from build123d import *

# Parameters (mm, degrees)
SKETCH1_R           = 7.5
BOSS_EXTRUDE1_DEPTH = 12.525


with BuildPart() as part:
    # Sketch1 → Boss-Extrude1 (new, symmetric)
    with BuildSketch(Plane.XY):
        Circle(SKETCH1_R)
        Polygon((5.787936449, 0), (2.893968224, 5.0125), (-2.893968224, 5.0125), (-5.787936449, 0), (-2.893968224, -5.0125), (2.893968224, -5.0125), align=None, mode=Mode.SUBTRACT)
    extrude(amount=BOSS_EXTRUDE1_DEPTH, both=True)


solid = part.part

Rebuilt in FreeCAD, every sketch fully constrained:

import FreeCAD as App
import Part
import Sketcher
Q = App.Units.Quantity

doc = App.newDocument("Part")
body = doc.addObject("PartDesign::Body", "Body")

sketch1 = doc.addObject("Sketcher::SketchObject", "Sketch")
body.addObject(sketch1)
sketch1.AttachmentSupport = (doc.XY_Plane, [""])
sketch1.MapMode = "FlatFace"
sketch1.addGeometry(Part.Circle(App.Vector(0, 0, 0), App.Vector(0, 0, 1), 8), False)
sketch1.addGeometry(Part.LineSegment(App.Vector(3, 5, 0), App.Vector(6, 0, 0)), False)
sketch1.addGeometry(Part.LineSegment(App.Vector(6, 0, 0), App.Vector(3, -5, 0)), False)
sketch1.addGeometry(Part.LineSegment(App.Vector(3, -5, 0), App.Vector(-3, -5, 0)), False)
sketch1.addGeometry(Part.LineSegment(App.Vector(-3, -5, 0), App.Vector(-6, 0, 0)), False)
sketch1.addGeometry(Part.LineSegment(App.Vector(-6, 0, 0), App.Vector(-3, 5, 0)), False)
sketch1.addGeometry(Part.LineSegment(App.Vector(-3, 5, 0), App.Vector(3, 5, 0)), False)
sketch1.addConstraint(Sketcher.Constraint("Coincident", 1, 2, 2, 1))
sketch1.addConstraint(Sketcher.Constraint("Coincident", 2, 2, 3, 1))
sketch1.addConstraint(Sketcher.Constraint("Coincident", 3, 2, 4, 1))
sketch1.addConstraint(Sketcher.Constraint("Coincident", 4, 2, 5, 1))
sketch1.addConstraint(Sketcher.Constraint("Coincident", 5, 2, 6, 1))
sketch1.addConstraint(Sketcher.Constraint("Coincident", 6, 2, 1, 1))
sketch1.addConstraint(Sketcher.Constraint("Horizontal", 3))
sketch1.addConstraint(Sketcher.Constraint("Horizontal", 6))
sketch1.addConstraint(Sketcher.Constraint("Coincident", 0, 3, -1, 1))
sketch1.addConstraint(Sketcher.Constraint("Symmetric", 1, 2, 4, 2, -1, 1))
sketch1.addConstraint(Sketcher.Constraint("Symmetric", 2, 2, 5, 2, -1, 1))
sketch1.addConstraint(Sketcher.Constraint("PointOnObject", 1, 2, -1))
sketch1.addConstraint(Sketcher.Constraint("Parallel", 1, 4))
sketch1.addConstraint(Sketcher.Constraint("Vertical", 3, 2, 5, 2))
sketch1.addConstraint(Sketcher.Constraint("Diameter", 0, Q("15 mm")))
sketch1.addConstraint(Sketcher.Constraint("Angle", 1, Q("-60 deg")))
sketch1.addConstraint(Sketcher.Constraint("DistanceY", 3, 2, 5, 2, Q("10.025 mm")))
sketch1.addConstraint(Sketcher.Constraint("DistanceX", 3, 2, 3, 1, Q("5.787936 mm")))
pad1 = doc.addObject("PartDesign::Pad", "Pad")
body.addObject(pad1)
pad1.Profile = sketch1
pad1.Length = 25.05
pad1.Midplane = True

doc.recompute()
